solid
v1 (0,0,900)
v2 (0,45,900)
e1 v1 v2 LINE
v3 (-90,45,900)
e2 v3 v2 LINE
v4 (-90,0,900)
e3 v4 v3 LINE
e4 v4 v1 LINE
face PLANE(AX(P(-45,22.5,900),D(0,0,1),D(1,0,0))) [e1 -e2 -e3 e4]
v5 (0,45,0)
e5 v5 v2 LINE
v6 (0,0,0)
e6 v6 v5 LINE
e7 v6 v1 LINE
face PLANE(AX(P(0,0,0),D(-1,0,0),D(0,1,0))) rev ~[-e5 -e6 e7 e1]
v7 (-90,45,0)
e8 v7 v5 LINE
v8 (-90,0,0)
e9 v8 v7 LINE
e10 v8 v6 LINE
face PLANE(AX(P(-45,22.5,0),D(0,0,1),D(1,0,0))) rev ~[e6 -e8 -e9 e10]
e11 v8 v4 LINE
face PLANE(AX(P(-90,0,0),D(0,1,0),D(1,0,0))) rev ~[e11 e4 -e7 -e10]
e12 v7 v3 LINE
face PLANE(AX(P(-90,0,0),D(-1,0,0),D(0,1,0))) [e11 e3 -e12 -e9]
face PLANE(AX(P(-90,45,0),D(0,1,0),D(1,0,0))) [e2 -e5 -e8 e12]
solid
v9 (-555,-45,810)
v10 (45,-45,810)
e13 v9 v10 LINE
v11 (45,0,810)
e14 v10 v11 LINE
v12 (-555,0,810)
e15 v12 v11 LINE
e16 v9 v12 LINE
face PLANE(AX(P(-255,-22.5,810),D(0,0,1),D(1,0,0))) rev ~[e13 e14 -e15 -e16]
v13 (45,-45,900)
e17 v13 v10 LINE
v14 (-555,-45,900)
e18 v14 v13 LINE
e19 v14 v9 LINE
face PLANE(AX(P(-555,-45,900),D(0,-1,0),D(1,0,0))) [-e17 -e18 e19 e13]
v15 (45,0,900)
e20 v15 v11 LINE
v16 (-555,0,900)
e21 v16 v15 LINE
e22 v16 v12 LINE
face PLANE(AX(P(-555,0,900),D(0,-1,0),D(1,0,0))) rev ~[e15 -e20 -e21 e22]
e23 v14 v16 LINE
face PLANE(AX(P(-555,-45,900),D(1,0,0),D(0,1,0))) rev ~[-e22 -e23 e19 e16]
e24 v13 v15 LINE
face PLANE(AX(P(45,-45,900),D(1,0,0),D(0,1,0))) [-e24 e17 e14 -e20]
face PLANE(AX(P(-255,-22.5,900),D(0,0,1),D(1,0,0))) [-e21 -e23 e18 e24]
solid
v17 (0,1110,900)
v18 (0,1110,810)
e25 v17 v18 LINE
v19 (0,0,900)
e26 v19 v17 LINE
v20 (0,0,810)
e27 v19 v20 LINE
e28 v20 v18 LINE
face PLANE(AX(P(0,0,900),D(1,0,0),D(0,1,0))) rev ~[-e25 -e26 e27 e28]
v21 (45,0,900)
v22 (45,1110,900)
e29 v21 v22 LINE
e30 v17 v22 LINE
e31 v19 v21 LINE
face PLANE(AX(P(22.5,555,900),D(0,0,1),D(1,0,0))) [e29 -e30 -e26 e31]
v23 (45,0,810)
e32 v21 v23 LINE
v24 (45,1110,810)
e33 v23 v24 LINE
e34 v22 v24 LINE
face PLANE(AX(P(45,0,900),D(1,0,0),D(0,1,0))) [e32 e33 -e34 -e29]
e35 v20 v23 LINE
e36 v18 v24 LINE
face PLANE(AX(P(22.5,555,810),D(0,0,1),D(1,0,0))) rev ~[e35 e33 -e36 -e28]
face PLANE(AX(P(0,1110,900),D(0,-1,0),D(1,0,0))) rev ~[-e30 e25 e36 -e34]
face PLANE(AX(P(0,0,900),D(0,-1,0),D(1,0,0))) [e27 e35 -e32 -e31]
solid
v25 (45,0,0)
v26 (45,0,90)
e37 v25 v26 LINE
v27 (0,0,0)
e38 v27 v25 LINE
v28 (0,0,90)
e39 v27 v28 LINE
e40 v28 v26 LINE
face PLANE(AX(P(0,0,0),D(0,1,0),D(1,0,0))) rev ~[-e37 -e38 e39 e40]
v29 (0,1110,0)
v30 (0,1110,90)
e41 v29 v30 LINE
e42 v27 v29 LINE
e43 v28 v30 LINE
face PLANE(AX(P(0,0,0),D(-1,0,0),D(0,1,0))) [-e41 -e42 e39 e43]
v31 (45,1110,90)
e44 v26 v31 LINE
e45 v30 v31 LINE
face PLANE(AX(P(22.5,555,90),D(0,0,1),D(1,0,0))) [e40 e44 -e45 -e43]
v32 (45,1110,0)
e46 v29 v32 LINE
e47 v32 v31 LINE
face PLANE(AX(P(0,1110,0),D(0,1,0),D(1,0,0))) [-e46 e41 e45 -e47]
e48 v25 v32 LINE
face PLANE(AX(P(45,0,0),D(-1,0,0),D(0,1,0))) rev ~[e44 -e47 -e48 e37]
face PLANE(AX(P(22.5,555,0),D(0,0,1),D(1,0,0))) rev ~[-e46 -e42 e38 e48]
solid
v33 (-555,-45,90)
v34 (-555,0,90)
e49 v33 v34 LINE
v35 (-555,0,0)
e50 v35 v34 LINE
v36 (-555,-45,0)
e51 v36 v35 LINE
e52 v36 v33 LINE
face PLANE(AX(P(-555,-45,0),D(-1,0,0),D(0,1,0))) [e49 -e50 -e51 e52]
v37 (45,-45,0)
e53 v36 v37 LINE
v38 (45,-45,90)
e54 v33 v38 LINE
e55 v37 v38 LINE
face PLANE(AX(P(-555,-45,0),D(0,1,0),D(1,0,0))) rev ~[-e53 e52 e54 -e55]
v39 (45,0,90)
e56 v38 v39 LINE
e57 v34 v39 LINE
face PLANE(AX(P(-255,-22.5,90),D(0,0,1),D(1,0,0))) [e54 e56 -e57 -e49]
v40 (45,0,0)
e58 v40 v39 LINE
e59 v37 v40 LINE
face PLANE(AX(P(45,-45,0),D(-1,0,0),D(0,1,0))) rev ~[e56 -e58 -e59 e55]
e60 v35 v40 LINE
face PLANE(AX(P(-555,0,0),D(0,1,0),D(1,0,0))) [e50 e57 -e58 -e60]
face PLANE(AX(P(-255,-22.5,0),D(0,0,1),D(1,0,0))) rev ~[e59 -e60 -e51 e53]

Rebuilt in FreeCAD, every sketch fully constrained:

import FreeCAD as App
import Part
import Sketcher

V = App.Vector


def add_polygon(sketch, points):
    """Adds a closed chain of lines whose ends are joined by coincident constraints."""
    first, n = sketch.GeometryCount, len(points)
    for a, b in zip(points, points[1:] + points[:1]):
        sketch.addGeometry(Part.LineSegment(App.Vector(*a, 0), App.Vector(*b, 0)), False)
    for i in range(n):
        sketch.addConstraint(Sketcher.Constraint("Coincident", first + i, 2, first + (i + 1) % n, 1))

doc = App.newDocument("Part")
body = doc.addObject("PartDesign::Body", "Body")

# Sketch on XY plane
sketch1 = body.newObject("Sketcher::SketchObject", "Sketch")
sketch1.AttachmentSupport = (doc.getObject("XY_Plane"), [""])
sketch1.MapMode = "FlatFace"
add_polygon(sketch1, [(0, 1110), (0, 0), (45, 0), (45, 1110)])  # lines 0-3
sketch1.addConstraint([
    Sketcher.Constraint("Vertical", 0),
    Sketcher.Constraint("Horizontal", 1),
    Sketcher.Constraint("Vertical", 2),
    Sketcher.Constraint("Horizontal", 3),
    Sketcher.Constraint("Coincident", 0, 2, -1, 1),
    Sketcher.Constraint("DistanceX", 1, 1, 1, 2, 45.0),
    Sketcher.Constraint("DistanceY", 0, 2, 0, 1, 1110.0),
])
pad1 = body.newObject("PartDesign::Pad", "Pad")
pad1.Profile = sketch1
pad1.Length = 90
body2 = doc.addObject("PartDesign::Body", "Body001")

# Sketch on XY plane
sketch2 = body2.newObject("Sketcher::SketchObject", "Sketch001")
sketch2.AttachmentSupport = (doc.getObject("XY_Plane001"), [""])
sketch2.MapMode = "FlatFace"
add_polygon(sketch2, [(-555, 0), (-555, -45), (45, -45), (45, 0)])  # lines 0-3
sketch2.addConstraint([
    Sketcher.Constraint("Vertical", 0),
    Sketcher.Constraint("Horizontal", 1),
    Sketcher.Constraint("Vertical", 2),
    Sketcher.Constraint("Horizontal", 3),
    Sketcher.Constraint("PointOnObject", 2, 2, -1),
    Sketcher.Constraint("DistanceX", 1, 1, 1, 2, 600.0),
    Sketcher.Constraint("DistanceY", 0, 2, 0, 1, 45.0),
    Sketcher.Constraint("DistanceX", 0, 2, -1, 1, 555.0),
])
pad2 = body2.newObject("PartDesign::Pad", "Pad001")
pad2.Profile = sketch2
pad2.Length = 90
body3 = doc.addObject("PartDesign::Body", "Body002")

# Sketch on XY plane
sketch3 = body3.newObject("Sketcher::SketchObject", "Sketch002")
sketch3.AttachmentSupport = (doc.getObject("XY_Plane002"), [""])
sketch3.MapMode = "FlatFace"
add_polygon(sketch3, [(-90, 45), (-90, 0), (0, 0), (0, 45)])  # lines 0-3
sketch3.addConstraint([
    Sketcher.Constraint("Vertical", 0),
    Sketcher.Constraint("Horizontal", 1),
    Sketcher.Constraint("Vertical", 2),
    Sketcher.Constraint("Horizontal", 3),
    Sketcher.Constraint("Coincident", 1, 2, -1, 1),
    Sketcher.Constraint("DistanceX", 1, 1, 1, 2, 90.0),
    Sketcher.Constraint("DistanceY", 0, 2, 0, 1, 45.0),
])
pad3 = body3.newObject("PartDesign::Pad", "Pad002")
pad3.Profile = sketch3
pad3.Length = 900
body4 = doc.addObject("PartDesign::Body", "Body003")

# Sketch on XY plane
sketch4 = body4.newObject("Sketcher::SketchObject", "Sketch003")
sketch4.AttachmentSupport = (doc.getObject("XY_Plane003"), [""])
sketch4.MapMode = "FlatFace"
sketch4.AttachmentOffset = App.Placement(V(0, 0, 900), App.Rotation())
add_polygon(sketch4, [(0, 1110), (0, 0), (45, 0), (45, 1110)])  # lines 0-3
sketch4.addConstraint([
    Sketcher.Constraint("Vertical", 0),
    Sketcher.Constraint("Horizontal", 1),
    Sketcher.Constraint("Vertical", 2),
    Sketcher.Constraint("Horizontal", 3),
    Sketcher.Constraint("Coincident", 0, 2, -1, 1),
    Sketcher.Constraint("DistanceX", 1, 1, 1, 2, 45.0),
    Sketcher.Constraint("DistanceY", 0, 2, 0, 1, 1110.0),
])
pad4 = body4.newObject("PartDesign::Pad", "Pad003")
pad4.Profile = sketch4
pad4.Length = 90
pad4.Reversed = True
body5 = doc.addObject("PartDesign::Body", "Body004")

# Sketch on XY plane
sketch5 = body5.newObject("Sketcher::SketchObject", "Sketch004")
sketch5.AttachmentSupport = (doc.getObject("XY_Plane004"), [""])
sketch5.MapMode = "FlatFace"
sketch5.AttachmentOffset = App.Placement(V(0, 0, 900), App.Rotation())
add_polygon(sketch5, [(-555, 0), (-555, -45), (45, -45), (45, 0)])  # lines 0-3
sketch5.addConstraint([
    Sketcher.Constraint("Vertical", 0),
    Sketcher.Constraint("Horizontal", 1),
    Sketcher.Constraint("Vertical", 2),
    Sketcher.Constraint("Horizontal", 3),
    Sketcher.Constraint("PointOnObject", 2, 2, -1),
    Sketcher.Constraint("DistanceX", 1, 1, 1, 2, 600.0),
    Sketcher.Constraint("DistanceY", 0, 2, 0, 1, 45.0),
    Sketcher.Constraint("DistanceX", 0, 2, -1, 1, 555.0),
])
pad5 = body5.newObject("PartDesign::Pad", "Pad004")
pad5.Profile = sketch5
pad5.Length = 90
pad5.Reversed = True

doc.recompute()
